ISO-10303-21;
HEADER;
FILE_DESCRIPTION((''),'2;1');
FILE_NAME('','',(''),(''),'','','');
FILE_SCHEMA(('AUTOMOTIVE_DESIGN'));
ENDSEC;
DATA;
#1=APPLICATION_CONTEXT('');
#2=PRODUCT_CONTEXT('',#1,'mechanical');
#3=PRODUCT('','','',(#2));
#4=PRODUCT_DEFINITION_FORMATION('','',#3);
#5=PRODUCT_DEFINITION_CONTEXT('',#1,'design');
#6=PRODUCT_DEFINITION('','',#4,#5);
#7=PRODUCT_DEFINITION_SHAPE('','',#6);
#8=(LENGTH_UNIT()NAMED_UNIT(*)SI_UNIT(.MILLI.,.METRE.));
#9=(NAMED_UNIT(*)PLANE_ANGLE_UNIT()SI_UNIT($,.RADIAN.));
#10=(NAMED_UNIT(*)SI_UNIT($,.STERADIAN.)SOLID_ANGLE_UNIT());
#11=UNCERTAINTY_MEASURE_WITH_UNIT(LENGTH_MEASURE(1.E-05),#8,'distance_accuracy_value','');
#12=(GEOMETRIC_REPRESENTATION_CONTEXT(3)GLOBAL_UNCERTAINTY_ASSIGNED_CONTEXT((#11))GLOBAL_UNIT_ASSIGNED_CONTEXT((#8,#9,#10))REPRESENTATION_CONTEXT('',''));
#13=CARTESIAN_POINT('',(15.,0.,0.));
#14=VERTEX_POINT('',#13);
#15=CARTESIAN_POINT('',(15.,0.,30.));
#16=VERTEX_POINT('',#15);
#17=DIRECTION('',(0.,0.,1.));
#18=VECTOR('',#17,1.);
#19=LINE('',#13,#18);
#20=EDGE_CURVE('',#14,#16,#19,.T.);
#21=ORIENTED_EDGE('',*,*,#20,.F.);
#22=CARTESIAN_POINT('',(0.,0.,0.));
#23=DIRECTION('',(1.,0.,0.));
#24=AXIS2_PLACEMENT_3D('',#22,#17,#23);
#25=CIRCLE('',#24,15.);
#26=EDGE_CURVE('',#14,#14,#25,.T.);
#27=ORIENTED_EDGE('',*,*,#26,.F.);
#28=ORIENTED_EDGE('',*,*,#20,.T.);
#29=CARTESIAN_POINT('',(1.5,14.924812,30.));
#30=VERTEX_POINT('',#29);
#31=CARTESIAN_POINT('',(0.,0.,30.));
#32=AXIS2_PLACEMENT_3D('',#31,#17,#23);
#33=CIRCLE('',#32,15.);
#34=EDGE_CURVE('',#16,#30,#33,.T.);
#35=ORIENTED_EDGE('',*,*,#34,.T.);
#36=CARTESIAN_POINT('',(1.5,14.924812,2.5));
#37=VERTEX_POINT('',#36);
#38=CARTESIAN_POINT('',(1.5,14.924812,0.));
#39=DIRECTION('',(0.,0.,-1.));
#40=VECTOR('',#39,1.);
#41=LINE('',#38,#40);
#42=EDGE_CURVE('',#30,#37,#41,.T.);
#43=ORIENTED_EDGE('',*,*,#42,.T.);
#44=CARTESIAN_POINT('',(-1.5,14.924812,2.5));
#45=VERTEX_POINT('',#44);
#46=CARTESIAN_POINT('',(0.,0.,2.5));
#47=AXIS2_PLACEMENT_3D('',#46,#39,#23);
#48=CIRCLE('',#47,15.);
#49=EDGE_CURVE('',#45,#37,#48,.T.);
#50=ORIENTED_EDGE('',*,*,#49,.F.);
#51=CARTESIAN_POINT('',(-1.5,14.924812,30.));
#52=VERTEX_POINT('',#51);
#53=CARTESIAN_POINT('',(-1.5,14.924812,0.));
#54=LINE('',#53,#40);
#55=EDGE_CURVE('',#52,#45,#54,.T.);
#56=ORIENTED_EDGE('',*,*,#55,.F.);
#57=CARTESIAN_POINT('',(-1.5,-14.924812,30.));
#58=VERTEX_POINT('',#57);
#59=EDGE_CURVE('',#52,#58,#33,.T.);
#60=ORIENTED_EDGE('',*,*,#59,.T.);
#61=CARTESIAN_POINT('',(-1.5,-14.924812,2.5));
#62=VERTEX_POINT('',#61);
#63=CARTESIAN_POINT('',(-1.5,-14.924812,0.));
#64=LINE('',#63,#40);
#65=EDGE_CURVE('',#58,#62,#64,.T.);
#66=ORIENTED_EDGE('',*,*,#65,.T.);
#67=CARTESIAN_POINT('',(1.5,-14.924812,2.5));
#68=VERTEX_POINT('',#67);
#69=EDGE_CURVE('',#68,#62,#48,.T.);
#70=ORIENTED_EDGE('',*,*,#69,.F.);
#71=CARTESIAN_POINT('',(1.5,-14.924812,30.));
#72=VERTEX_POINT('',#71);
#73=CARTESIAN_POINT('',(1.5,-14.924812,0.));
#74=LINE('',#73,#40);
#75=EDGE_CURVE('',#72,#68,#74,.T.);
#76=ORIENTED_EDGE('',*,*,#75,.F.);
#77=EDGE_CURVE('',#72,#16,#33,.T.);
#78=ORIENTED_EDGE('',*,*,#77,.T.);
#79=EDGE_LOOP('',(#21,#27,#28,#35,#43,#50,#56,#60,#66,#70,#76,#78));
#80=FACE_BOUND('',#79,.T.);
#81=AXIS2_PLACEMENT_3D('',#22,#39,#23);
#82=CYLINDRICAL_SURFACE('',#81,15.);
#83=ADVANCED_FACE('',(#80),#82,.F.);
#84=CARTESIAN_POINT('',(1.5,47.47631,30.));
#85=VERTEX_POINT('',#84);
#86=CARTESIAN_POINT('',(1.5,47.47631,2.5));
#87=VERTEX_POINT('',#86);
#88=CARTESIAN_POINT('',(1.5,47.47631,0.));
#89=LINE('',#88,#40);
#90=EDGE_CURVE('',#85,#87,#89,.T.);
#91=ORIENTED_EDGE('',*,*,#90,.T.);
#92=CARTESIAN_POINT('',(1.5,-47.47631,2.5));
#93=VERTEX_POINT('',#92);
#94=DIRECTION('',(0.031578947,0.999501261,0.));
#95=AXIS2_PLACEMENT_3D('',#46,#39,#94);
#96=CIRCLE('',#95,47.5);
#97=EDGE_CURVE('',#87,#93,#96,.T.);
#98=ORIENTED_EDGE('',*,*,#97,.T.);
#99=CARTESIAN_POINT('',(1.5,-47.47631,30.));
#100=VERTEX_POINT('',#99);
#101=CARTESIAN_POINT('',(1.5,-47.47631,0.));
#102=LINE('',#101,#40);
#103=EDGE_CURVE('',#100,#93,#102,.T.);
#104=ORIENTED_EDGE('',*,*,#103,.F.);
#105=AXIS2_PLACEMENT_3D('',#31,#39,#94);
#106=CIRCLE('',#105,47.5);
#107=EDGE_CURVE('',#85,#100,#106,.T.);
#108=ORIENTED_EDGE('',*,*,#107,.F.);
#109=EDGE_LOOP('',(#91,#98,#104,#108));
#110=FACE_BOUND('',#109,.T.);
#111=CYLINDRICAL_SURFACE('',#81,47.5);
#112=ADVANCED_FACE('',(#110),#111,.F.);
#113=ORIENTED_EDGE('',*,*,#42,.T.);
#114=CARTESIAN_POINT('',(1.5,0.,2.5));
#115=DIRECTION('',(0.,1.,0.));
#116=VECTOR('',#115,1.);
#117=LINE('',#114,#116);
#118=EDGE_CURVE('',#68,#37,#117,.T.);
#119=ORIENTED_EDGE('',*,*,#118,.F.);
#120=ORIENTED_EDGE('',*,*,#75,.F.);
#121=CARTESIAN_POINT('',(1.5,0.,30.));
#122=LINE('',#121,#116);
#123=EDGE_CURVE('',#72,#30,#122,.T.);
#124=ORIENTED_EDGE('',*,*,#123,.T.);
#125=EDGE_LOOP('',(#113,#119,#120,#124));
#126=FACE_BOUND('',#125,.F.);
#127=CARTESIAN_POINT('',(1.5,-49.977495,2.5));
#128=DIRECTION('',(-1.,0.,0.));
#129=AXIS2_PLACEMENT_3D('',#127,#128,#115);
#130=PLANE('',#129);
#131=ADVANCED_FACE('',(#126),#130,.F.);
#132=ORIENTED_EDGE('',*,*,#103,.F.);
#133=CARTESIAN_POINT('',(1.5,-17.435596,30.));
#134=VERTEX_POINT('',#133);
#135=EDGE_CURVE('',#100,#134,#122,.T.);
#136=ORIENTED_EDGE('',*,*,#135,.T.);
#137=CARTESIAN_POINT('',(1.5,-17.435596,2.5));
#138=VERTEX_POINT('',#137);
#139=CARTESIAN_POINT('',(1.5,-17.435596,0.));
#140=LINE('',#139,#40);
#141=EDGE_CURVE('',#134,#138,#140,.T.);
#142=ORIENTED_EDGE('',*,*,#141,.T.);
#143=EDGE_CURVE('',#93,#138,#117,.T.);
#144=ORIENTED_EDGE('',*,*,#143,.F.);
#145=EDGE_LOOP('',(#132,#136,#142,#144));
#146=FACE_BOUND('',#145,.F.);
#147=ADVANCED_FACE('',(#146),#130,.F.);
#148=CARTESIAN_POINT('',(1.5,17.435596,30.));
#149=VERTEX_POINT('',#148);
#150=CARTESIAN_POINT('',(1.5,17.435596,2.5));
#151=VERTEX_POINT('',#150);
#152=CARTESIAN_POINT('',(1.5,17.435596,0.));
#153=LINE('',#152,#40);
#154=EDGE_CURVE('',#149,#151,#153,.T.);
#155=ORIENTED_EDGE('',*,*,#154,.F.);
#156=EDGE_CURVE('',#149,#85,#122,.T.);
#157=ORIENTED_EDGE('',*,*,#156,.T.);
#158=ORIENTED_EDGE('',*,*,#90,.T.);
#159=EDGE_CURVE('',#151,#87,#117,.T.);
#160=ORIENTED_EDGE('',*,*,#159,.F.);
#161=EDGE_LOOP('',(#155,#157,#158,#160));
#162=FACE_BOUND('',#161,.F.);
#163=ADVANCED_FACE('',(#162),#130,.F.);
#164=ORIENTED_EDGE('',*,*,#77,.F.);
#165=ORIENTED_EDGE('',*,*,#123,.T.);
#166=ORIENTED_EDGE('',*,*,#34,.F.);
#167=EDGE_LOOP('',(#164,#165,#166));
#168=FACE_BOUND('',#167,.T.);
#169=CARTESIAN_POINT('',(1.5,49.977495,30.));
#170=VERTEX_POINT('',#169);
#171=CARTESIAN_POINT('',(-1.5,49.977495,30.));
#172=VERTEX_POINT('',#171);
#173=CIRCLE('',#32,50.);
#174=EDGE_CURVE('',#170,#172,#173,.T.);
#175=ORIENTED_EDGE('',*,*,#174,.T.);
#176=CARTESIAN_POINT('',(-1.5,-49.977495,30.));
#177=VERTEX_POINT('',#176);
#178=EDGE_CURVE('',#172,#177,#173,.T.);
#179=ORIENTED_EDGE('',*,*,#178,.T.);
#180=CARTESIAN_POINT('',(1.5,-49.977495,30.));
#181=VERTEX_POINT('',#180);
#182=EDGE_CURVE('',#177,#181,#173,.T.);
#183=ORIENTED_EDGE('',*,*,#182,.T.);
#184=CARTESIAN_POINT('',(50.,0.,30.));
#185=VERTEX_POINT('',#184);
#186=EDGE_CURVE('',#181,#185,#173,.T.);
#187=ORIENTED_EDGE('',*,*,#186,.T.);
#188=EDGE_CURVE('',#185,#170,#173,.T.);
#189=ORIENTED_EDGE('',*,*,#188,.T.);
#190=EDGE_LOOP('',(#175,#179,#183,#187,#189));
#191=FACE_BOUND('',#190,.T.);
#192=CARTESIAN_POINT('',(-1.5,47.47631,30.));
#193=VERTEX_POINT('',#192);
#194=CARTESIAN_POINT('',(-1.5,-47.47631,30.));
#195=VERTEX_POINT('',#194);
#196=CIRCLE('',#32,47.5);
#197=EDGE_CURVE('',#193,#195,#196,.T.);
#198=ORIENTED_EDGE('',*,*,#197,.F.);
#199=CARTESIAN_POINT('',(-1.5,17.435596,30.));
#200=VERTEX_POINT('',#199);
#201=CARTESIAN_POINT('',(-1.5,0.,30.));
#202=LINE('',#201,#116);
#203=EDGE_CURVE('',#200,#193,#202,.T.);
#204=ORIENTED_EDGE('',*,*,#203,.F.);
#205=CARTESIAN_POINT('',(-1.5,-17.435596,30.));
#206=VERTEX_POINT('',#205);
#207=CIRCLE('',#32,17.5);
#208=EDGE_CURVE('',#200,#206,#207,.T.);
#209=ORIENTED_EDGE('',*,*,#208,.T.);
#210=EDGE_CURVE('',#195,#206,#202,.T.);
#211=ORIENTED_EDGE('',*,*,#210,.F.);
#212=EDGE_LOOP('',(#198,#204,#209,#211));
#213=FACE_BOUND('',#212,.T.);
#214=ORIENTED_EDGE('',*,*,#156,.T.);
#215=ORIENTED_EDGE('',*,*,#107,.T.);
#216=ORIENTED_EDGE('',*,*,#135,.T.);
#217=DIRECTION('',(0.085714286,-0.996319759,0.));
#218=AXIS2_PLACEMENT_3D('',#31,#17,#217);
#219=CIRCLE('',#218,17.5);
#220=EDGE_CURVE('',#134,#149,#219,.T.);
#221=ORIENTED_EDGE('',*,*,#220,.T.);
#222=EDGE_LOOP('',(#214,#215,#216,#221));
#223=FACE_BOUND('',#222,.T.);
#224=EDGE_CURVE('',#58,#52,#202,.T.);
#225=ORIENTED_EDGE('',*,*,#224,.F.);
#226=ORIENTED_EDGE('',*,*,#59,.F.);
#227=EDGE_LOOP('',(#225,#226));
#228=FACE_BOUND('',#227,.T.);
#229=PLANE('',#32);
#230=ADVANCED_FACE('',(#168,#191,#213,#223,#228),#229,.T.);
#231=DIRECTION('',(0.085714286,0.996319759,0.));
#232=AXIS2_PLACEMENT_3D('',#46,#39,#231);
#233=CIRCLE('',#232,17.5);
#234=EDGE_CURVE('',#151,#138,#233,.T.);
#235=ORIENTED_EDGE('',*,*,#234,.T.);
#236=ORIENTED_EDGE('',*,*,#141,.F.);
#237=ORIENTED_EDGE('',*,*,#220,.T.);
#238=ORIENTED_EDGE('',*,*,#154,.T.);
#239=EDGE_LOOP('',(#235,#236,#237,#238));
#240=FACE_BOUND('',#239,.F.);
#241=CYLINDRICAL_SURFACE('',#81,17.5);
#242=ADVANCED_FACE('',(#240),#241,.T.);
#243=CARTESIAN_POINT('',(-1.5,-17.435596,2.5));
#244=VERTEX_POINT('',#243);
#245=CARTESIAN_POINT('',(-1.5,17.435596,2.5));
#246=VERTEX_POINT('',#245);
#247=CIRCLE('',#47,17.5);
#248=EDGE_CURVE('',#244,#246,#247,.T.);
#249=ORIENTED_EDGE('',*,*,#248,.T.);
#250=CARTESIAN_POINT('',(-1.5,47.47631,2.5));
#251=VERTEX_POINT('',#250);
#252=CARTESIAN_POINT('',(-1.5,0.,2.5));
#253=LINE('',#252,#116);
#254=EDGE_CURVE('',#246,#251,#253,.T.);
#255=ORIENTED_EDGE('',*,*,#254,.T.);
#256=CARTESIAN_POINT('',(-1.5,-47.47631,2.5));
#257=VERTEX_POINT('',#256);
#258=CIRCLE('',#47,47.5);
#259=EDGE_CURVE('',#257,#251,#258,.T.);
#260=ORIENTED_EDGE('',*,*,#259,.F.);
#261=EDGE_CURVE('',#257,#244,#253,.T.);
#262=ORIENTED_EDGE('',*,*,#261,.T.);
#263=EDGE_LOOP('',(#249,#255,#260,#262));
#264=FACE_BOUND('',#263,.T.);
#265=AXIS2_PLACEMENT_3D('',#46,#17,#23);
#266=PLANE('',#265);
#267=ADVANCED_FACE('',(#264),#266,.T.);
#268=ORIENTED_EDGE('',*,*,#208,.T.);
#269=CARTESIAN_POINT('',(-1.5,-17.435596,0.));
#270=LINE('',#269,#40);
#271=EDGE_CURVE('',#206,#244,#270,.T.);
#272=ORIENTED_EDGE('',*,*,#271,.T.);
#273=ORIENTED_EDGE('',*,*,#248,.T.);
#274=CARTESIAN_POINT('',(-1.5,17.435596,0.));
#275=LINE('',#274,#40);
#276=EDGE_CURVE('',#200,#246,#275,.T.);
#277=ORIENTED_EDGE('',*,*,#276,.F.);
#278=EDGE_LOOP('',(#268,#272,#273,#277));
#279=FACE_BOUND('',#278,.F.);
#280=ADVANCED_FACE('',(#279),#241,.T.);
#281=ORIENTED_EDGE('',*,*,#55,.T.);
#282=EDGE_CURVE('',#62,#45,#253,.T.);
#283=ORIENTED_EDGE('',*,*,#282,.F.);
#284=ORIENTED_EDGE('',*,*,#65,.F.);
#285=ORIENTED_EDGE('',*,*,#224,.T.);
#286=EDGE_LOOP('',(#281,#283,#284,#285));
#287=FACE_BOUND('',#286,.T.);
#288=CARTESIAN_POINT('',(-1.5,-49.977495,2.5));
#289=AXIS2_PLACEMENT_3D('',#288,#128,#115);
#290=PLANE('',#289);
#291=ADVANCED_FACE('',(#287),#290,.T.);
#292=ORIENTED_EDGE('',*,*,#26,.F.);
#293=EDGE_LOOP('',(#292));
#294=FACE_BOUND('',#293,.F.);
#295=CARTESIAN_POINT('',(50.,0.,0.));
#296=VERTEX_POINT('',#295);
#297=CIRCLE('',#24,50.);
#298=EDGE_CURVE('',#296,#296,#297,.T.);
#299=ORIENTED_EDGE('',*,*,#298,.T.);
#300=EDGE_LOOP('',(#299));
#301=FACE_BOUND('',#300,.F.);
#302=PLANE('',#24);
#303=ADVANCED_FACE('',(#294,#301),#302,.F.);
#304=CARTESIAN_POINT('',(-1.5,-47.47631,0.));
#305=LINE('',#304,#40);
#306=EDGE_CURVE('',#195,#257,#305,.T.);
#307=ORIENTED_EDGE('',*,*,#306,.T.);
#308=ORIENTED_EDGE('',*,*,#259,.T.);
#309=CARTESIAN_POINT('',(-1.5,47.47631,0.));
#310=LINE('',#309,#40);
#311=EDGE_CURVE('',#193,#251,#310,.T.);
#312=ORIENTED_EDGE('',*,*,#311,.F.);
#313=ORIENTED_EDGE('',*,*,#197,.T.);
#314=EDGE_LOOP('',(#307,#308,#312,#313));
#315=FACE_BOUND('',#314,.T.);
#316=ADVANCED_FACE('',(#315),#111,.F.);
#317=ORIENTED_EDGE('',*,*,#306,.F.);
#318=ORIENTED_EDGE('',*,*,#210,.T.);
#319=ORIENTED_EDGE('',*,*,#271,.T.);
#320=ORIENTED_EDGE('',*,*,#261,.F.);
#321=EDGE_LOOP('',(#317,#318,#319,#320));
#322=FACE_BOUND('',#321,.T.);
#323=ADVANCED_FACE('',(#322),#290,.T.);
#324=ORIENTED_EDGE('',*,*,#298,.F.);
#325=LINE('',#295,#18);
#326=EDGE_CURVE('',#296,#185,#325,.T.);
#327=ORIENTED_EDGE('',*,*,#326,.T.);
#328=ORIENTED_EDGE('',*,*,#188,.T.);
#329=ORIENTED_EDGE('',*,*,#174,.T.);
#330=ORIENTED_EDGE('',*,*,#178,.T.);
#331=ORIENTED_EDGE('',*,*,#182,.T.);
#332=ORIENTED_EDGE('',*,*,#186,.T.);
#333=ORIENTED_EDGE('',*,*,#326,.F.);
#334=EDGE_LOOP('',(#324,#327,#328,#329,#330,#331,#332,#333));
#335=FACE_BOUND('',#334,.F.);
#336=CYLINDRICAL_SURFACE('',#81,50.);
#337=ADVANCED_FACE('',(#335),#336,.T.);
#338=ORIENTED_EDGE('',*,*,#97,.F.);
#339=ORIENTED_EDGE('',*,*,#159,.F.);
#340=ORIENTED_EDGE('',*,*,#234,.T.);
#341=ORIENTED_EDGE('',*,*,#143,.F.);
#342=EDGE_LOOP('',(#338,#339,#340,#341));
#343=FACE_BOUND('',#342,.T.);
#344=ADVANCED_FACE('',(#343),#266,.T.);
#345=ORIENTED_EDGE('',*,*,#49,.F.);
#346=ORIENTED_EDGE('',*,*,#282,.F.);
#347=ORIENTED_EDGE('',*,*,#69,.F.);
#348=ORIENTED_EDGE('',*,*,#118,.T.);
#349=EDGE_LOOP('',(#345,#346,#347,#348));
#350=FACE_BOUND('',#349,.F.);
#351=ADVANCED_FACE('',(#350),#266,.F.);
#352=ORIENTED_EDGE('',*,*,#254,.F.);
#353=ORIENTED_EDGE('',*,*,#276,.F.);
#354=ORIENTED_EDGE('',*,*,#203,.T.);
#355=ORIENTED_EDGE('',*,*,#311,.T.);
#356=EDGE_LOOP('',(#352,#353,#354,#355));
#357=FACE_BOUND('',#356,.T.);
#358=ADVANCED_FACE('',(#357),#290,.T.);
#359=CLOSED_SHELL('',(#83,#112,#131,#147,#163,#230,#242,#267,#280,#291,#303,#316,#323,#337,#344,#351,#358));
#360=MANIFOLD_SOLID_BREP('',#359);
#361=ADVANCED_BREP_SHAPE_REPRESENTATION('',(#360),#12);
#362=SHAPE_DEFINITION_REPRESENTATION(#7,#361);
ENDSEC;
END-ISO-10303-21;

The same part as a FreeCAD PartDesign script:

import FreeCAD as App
import Part
import Sketcher
from FreeCAD import Vector
Q = App.Units.Quantity


def faces_at(feature, points):
    """Names of the faces that lie closest to the given points."""
    faces = feature.Shape.Faces
    near = lambda p: min(range(len(faces)), key=lambda i: faces[i].distToShape(Part.Vertex(*p))[0])
    return sorted({f"Face{near(p) + 1}" for p in points})

doc = App.newDocument("Part")
body = doc.addObject("PartDesign::Body", "Body")

sketch1 = body.newObject("Sketcher::SketchObject", "Sketch")
sketch1.AttachmentSupport = (doc.getObject("XY_Plane"), [""])
sketch1.MapMode = "FlatFace"
sketch1.addGeometry([
    Part.Circle(Vector(0, 0, 0), Vector(0, 0, 1), 50),
    Part.Circle(Vector(0, 0, 0), Vector(0, 0, 1), 15),
], False)
sketch1.addConstraint([
    Sketcher.Constraint("Coincident", 0, 3, -1, 1),
    Sketcher.Constraint("Coincident", 1, 3, -1, 1),
    Sketcher.Constraint("Diameter", 0, Q("100 mm")),
    Sketcher.Constraint("Diameter", 1, Q("30 mm")),
])
pad1 = body.newObject("PartDesign::Pad", "Pad")
pad1.Profile = sketch1
pad1.Length = 30
doc.recompute()

thickness = body.newObject("PartDesign::Thickness", "Thickness")
thickness.Base = (pad1, faces_at(pad1, [(-20, -20, 30)]))
thickness.Value = 2.5
thickness.Reversed = True
thickness.Join = "Arc"

sketch2 = body.newObject("Sketcher::SketchObject", "Sketch001")
sketch2.AttachmentSupport = (doc.getObject("XY_Plane"), [""])
sketch2.MapMode = "FlatFace"
sketch2.AttachmentOffset = App.Placement(Vector(0, 0, 2.5), App.Rotation())
sketch2.addGeometry([
    Part.LineSegment(Vector(-1.5, 50, 0), Vector(-1.5, -50, 0)),
    Part.LineSegment(Vector(-1.5, -50, 0), Vector(1.5, -50, 0)),
    Part.LineSegment(Vector(1.5, -50, 0), Vector(1.5, 50, 0)),
    Part.LineSegment(Vector(1.5, 50, 0), Vector(-1.5, 50, 0)),
], False)
sketch2.addConstraint([
    Sketcher.Constraint("Coincident", 0, 2, 1, 1),
    Sketcher.Constraint("Coincident", 1, 2, 2, 1),
    Sketcher.Constraint("Coincident", 2, 2, 3, 1),
    Sketcher.Constraint("Coincident", 3, 2, 0, 1),
    Sketcher.Constraint("Vertical", 0),
    Sketcher.Constraint("Horizontal", 1),
    Sketcher.Constraint("Vertical", 2),
    Sketcher.Constraint("Horizontal", 3),
    Sketcher.Constraint("Symmetric", 0, 2, 2, 2, -1, 1),
    Sketcher.Constraint("DistanceX", 1, 1, 1, 2, Q("3 mm")),
    Sketcher.Constraint("DistanceY", 0, 2, 0, 1, Q("99.95499 mm")),
])
pad2 = body.newObject("PartDesign::Pad", "Pad001")
pad2.Profile = sketch2
pad2.Length = 27.5

doc.recompute()
